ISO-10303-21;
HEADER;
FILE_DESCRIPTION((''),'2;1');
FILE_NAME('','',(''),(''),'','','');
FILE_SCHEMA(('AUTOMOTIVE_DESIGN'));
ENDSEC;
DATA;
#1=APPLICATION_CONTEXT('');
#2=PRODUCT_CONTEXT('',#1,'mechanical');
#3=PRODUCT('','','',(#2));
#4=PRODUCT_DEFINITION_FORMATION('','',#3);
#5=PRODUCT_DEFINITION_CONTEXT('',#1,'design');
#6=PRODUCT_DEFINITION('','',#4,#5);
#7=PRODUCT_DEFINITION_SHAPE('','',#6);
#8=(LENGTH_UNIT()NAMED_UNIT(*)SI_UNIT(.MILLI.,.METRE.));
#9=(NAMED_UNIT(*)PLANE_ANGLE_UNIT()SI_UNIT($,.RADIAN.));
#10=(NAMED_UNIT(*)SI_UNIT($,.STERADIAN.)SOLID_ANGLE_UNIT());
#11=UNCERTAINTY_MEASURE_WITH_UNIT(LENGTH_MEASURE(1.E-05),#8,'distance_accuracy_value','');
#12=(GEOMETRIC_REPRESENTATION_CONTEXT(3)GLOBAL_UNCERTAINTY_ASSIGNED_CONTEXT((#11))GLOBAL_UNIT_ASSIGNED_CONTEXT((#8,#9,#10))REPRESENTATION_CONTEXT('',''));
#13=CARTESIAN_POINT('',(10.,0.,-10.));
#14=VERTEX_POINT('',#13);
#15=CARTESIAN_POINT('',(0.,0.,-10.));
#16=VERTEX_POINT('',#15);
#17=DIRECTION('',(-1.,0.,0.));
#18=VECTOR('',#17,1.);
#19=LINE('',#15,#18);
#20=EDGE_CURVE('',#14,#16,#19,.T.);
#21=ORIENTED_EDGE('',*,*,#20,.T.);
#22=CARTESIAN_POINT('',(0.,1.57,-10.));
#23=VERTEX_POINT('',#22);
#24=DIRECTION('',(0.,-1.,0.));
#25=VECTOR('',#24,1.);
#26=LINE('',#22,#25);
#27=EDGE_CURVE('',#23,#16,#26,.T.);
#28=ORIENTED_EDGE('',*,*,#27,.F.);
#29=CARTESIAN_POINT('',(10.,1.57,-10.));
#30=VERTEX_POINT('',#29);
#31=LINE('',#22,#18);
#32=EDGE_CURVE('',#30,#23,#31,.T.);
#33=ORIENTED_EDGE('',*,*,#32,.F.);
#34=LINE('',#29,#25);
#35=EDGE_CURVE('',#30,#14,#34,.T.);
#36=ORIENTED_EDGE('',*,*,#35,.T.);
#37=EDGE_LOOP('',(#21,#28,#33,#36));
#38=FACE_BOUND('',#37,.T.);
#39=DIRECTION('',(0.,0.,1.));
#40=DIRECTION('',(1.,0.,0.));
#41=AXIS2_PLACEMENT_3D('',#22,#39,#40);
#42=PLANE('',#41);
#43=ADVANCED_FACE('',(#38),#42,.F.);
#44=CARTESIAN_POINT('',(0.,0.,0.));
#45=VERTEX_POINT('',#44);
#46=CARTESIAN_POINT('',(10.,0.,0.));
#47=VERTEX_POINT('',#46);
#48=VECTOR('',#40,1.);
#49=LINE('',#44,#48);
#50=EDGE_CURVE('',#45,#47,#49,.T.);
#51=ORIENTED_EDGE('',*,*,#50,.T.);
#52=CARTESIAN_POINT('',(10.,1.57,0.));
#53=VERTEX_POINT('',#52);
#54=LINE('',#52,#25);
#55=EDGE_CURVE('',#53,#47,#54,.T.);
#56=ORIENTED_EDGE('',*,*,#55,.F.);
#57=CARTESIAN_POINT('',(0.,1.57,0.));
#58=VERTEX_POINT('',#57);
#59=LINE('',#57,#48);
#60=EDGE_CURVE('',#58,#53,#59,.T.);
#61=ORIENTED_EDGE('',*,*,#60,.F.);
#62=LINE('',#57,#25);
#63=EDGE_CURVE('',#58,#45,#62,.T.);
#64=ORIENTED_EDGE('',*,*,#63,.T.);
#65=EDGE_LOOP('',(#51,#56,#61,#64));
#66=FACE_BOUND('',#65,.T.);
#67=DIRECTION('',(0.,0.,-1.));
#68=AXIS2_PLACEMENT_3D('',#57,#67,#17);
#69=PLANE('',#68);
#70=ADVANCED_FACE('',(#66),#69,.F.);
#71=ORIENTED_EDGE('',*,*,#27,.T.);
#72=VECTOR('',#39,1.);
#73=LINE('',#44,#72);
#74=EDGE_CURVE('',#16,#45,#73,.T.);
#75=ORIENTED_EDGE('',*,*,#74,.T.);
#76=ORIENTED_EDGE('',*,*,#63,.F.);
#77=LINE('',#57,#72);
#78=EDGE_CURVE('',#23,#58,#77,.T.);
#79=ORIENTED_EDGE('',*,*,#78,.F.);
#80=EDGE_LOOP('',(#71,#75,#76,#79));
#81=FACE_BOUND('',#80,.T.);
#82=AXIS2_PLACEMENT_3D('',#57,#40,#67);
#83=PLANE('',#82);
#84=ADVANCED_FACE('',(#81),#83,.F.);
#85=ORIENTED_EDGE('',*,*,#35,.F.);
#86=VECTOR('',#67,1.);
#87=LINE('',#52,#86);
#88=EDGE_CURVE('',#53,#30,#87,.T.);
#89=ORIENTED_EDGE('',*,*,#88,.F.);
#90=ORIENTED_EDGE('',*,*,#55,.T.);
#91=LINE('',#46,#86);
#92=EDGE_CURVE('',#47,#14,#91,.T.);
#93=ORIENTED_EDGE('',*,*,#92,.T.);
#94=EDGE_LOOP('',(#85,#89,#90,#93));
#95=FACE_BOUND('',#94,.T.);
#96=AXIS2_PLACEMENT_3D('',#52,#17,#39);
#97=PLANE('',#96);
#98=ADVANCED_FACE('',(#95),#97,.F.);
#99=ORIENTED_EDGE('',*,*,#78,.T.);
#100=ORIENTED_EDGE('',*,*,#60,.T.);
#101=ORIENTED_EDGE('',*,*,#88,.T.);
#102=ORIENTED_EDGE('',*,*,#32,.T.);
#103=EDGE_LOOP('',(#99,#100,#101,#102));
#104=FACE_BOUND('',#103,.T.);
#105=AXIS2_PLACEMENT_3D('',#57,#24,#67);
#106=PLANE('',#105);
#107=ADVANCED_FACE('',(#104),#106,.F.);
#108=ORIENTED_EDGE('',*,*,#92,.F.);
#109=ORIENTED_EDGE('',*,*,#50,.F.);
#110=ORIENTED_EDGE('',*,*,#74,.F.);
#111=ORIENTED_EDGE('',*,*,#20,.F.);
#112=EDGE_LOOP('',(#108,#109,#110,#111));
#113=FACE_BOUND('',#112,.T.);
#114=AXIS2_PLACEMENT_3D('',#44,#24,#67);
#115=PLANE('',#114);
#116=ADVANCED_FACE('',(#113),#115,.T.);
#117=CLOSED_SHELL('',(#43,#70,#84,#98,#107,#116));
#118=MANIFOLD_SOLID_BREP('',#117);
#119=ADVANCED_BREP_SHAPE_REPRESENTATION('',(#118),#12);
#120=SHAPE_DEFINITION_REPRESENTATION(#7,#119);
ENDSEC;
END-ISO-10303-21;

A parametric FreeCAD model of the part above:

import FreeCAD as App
import Part
import Sketcher
from FreeCAD import Vector
Q = App.Units.Quantity


def add_polygon(sketch, points):
    """Adds a closed chain of lines whose ends are joined by coincident constraints."""
    first, n = sketch.GeometryCount, len(points)
    for a, b in zip(points, points[1:] + points[:1]):
        sketch.addGeometry(Part.LineSegment(App.Vector(*a, 0), App.Vector(*b, 0)), False)
    for i in range(n):
        sketch.addConstraint(Sketcher.Constraint("Coincident", first + i, 2, first + (i + 1) % n, 1))

doc = App.newDocument("Part")
body = doc.addObject("PartDesign::Body", "Body")

sketch1 = doc.addObject("Sketcher::SketchObject", "Sketch")
body.addObject(sketch1)
sketch1.AttachmentSupport = (doc.XZ_Plane, [""])
sketch1.MapMode = "FlatFace"
add_polygon(sketch1, [(0, -10), (0, 0), (10, 0), (10, -10)])
sketch1.addConstraint(Sketcher.Constraint("Vertical", 0))
sketch1.addConstraint(Sketcher.Constraint("Horizontal", 1))
sketch1.addConstraint(Sketcher.Constraint("Vertical", 2))
sketch1.addConstraint(Sketcher.Constraint("Horizontal", 3))
sketch1.addConstraint(Sketcher.Constraint("Coincident", 0, 2, -1, 1))
sketch1.addConstraint(Sketcher.Constraint("Equal", 3, 0))
sketch1.addConstraint(Sketcher.Constraint("DistanceX", 1, 1, 1, 2, Q("10 mm")))
pad1 = doc.addObject("PartDesign::Pad", "Pad")
body.addObject(pad1)
pad1.Profile = sketch1
pad1.Length = 1.57
pad1.Reversed = True

doc.recompute()
